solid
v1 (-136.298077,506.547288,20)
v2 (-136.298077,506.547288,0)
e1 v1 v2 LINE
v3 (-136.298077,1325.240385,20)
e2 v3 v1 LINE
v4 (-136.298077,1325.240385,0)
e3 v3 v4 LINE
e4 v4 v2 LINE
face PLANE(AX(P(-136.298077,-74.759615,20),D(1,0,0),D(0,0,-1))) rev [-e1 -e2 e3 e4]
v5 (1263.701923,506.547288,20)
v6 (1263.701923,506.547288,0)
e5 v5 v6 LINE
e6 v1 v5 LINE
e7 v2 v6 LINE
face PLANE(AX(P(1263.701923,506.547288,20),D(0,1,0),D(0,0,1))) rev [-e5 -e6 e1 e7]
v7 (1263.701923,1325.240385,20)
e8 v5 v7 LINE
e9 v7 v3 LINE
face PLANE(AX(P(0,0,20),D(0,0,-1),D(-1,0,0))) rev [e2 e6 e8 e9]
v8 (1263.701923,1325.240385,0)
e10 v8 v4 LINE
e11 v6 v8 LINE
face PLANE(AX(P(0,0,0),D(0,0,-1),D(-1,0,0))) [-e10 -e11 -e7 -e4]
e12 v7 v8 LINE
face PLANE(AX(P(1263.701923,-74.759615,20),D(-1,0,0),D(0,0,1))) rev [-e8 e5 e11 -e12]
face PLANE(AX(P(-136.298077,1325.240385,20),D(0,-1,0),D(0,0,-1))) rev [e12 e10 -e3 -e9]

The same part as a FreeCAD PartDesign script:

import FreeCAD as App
import Part
import Sketcher
Q = App.Units.Quantity

doc = App.newDocument("Part")
params = doc.addObject("Spreadsheet::Sheet", "Params")
for row, (alias, value) in enumerate([
    ("sketch1_width", "1400 mm"),
    ("pad1_length", "20 mm"),
    ("sketch2_width", "1400 mm"),
], start=1):
    params.set(f"A{row}", alias)
    params.set(f"B{row}", "=" + value)
    params.setAlias(f"B{row}", alias)

body = doc.addObject("PartDesign::Body", "Body")

# Sketch on XY plane
sketch1 = doc.addObject("Sketcher::SketchObject", "Sketch")
body.addObject(sketch1)
sketch1.AttachmentSupport = (doc.XY_Plane, [""])
sketch1.MapMode = "FlatFace"
sketch1.addGeometry([
    Part.LineSegment(App.Vector(-136, 1325, 0), App.Vector(-136, -75, 0)),
    Part.LineSegment(App.Vector(-136, -75, 0), App.Vector(1264, -75, 0)),
    Part.LineSegment(App.Vector(1264, -75, 0), App.Vector(1264, 1325, 0)),
    Part.LineSegment(App.Vector(1264, 1325, 0), App.Vector(-136, 1325, 0)),
], False)
sketch1.addConstraint([
    Sketcher.Constraint("Coincident", 0, 2, 1, 1),
    Sketcher.Constraint("Coincident", 1, 2, 2, 1),
    Sketcher.Constraint("Coincident", 2, 2, 3, 1),
    Sketcher.Constraint("Coincident", 3, 2, 0, 1),
    Sketcher.Constraint("Vertical", 0),
    Sketcher.Constraint("Horizontal", 1),
    Sketcher.Constraint("Vertical", 2),
    Sketcher.Constraint("Horizontal", 3),
    Sketcher.Constraint("Equal", 3, 0),
    Sketcher.Constraint("DistanceX", 1, 1, 1, 2, Q("1400 mm")),
    Sketcher.Constraint("DistanceX", 0, 2, -1, 1, Q("136.298077 mm")),
    Sketcher.Constraint("DistanceY", 0, 2, -1, 1, Q("74.759615 mm")),
])
sketch1.setExpression("Constraints[9]", "Params.sketch1_width")
pad1 = doc.addObject("PartDesign::Pad", "Pad")
body.addObject(pad1)
pad1.Profile = sketch1
pad1.setExpression("Length", "Params.pad1_length")

# Sketch on XY plane
sketch2 = doc.addObject("Sketcher::SketchObject", "Sketch001")
body.addObject(sketch2)
sketch2.AttachmentSupport = (doc.XY_Plane, [""])
sketch2.MapMode = "FlatFace"
sketch2.addGeometry([
    Part.LineSegment(App.Vector(1264, 507, 0), App.Vector(1264, -75, 0)),
    Part.LineSegment(App.Vector(1264, -75, 0), App.Vector(-136, -75, 0)),
    Part.LineSegment(App.Vector(-136, -75, 0), App.Vector(-136, 507, 0)),
    Part.LineSegment(App.Vector(-136, 507, 0), App.Vector(1264, 507, 0)),
], False)
sketch2.addConstraint([
    Sketcher.Constraint("Coincident", 0, 2, 1, 1),
    Sketcher.Constraint("Coincident", 1, 2, 2, 1),
    Sketcher.Constraint("Coincident", 2, 2, 3, 1),
    Sketcher.Constraint("Coincident", 3, 2, 0, 1),
    Sketcher.Constraint("Vertical", 0),
    Sketcher.Constraint("Horizontal", 1),
    Sketcher.Constraint("Vertical", 2),
    Sketcher.Constraint("Horizontal", 3),
    Sketcher.Constraint("DistanceX", 1, 2, 1, 1, Q("1400 mm")),
    Sketcher.Constraint("DistanceY", 0, 2, 0, 1, Q("581.306903 mm")),
    Sketcher.Constraint("DistanceX", -1, 1, 0, 2, Q("1263.701923 mm")),
    Sketcher.Constraint("DistanceY", 0, 2, -1, 1, Q("74.759615 mm")),
])
sketch2.setExpression("Constraints[8]", "Params.sketch2_width")
pocket1 = doc.addObject("PartDesign::Pocket", "Pocket")
body.addObject(pocket1)
pocket1.Profile = sketch2
pocket1.Type = "ThroughAll"
pocket1.Reversed = True

doc.recompute()
